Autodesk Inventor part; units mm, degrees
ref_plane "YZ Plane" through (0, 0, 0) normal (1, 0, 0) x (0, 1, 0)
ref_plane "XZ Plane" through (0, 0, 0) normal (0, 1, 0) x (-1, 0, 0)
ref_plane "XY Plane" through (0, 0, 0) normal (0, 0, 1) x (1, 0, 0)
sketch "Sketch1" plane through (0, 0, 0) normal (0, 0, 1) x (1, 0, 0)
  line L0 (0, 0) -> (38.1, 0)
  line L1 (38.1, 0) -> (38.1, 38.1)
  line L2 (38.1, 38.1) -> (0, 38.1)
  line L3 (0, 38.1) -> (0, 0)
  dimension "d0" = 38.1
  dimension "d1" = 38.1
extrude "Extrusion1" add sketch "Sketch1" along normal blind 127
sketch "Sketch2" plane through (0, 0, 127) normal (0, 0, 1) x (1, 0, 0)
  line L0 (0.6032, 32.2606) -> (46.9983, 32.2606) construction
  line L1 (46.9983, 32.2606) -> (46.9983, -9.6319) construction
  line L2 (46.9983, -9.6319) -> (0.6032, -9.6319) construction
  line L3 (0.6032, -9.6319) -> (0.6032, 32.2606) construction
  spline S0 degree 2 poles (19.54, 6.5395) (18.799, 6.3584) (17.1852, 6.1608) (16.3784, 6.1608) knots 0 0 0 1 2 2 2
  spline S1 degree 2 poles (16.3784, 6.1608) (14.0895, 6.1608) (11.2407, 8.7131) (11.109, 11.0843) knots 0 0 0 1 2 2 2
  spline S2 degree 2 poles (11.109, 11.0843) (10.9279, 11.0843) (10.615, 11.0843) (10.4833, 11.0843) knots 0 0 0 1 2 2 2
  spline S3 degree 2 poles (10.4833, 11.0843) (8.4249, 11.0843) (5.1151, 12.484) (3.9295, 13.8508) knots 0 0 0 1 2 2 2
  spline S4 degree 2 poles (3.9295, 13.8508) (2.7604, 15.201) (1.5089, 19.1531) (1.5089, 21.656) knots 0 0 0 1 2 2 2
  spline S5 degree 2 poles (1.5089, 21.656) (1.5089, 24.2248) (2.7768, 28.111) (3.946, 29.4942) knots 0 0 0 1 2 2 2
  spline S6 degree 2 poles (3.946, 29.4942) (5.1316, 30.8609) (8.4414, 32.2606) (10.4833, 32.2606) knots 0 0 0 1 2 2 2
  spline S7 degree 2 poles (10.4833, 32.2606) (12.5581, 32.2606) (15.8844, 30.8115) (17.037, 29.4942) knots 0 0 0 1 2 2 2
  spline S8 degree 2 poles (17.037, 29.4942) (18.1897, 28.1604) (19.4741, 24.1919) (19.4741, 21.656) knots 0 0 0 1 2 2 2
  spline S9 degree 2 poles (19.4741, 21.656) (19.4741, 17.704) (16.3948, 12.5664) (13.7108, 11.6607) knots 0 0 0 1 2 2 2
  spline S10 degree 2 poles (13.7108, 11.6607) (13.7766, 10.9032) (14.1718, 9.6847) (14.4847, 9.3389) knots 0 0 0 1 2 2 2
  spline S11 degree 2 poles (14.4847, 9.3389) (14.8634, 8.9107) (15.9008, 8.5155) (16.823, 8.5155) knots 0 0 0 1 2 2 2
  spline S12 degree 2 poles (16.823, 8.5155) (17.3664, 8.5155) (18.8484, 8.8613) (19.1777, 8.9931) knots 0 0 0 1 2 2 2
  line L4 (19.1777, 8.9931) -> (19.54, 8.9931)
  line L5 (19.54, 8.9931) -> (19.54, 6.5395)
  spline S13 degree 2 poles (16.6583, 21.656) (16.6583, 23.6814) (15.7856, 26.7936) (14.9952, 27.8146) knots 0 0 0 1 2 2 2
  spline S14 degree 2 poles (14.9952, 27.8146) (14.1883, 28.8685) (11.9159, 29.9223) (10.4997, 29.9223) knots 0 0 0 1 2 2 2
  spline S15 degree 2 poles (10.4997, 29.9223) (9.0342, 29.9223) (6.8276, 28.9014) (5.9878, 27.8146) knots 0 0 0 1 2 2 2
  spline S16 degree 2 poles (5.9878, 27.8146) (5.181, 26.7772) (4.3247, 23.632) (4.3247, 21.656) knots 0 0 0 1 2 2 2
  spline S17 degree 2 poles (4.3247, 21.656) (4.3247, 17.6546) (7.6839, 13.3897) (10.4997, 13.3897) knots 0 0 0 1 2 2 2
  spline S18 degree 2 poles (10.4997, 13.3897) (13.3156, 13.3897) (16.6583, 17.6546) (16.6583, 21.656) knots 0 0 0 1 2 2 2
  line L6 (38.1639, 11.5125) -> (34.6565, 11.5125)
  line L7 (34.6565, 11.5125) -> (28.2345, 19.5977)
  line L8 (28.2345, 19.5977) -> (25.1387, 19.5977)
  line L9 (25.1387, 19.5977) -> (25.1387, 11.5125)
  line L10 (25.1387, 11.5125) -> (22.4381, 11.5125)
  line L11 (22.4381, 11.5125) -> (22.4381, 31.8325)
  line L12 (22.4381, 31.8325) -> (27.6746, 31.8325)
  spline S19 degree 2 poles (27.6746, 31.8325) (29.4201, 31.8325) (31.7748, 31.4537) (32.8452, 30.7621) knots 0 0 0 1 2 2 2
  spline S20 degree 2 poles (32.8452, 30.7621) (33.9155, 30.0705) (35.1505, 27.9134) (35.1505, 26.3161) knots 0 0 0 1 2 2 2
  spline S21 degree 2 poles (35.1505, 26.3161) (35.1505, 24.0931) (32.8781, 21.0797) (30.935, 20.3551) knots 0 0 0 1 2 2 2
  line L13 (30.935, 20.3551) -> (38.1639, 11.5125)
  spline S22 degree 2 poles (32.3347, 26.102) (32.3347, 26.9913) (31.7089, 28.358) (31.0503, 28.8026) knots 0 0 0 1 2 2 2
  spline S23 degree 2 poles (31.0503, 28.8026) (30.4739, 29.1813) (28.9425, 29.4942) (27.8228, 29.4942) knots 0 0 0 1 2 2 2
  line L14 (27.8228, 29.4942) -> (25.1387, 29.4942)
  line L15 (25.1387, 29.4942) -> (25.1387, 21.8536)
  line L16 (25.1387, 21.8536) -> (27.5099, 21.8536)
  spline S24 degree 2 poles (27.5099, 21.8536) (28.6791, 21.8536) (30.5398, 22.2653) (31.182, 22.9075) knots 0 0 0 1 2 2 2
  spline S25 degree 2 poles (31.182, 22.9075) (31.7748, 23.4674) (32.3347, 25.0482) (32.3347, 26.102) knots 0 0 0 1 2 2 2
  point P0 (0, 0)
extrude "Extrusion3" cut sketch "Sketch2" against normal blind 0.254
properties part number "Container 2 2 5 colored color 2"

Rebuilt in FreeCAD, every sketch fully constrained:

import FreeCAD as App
import Part
import Sketcher
Q = App.Units.Quantity

doc = App.newDocument("Part")
params = doc.addObject("Spreadsheet::Sheet", "Params")
for row, (alias, value) in enumerate([
    ("sketch1_width", "1.5 in"),
    ("pad1_length", "5 in"),
    ("sketch2_height", "0.8 in"),
    ("pocket1_length", "0.01 in"),
], start=1):
    params.set(f"A{row}", alias)
    params.set(f"B{row}", "=" + value)
    params.setAlias(f"B{row}", alias)

body = doc.addObject("PartDesign::Body", "Body")

sketch1 = body.newObject("Sketcher::SketchObject", "Sketch")
sketch1.AttachmentSupport = (doc.getObject("XY_Plane"), [""])
sketch1.MapMode = "FlatFace"
sketch1.addGeometry([
    Part.LineSegment(App.Vector(0, 38.1, 0), App.Vector(0, 0, 0)),
    Part.LineSegment(App.Vector(0, 0, 0), App.Vector(38.1, 0, 0)),
    Part.LineSegment(App.Vector(38.1, 0, 0), App.Vector(38.1, 38.1, 0)),
    Part.LineSegment(App.Vector(38.1, 38.1, 0), App.Vector(0, 38.1, 0)),
], False)
sketch1.addConstraint([
    Sketcher.Constraint("Coincident", 0, 2, 1, 1),
    Sketcher.Constraint("Coincident", 1, 2, 2, 1),
    Sketcher.Constraint("Coincident", 2, 2, 3, 1),
    Sketcher.Constraint("Coincident", 3, 2, 0, 1),
    Sketcher.Constraint("Vertical", 0),
    Sketcher.Constraint("Horizontal", 1),
    Sketcher.Constraint("Vertical", 2),
    Sketcher.Constraint("Horizontal", 3),
    Sketcher.Constraint("Coincident", 0, 2, -1, 1),
    Sketcher.Constraint("Equal", 3, 0),
    Sketcher.Constraint("DistanceX", 1, 1, 1, 2, Q("1.5 in")),
])
sketch1.setExpression("Constraints[10]", "Params.sketch1_width")
pad1 = body.newObject("PartDesign::Pad", "Pad")
pad1.Profile = sketch1
pad1.setExpression("Length", "Params.pad1_length")

sketch2 = body.newObject("Sketcher::SketchObject", "Sketch001")
sketch2.AttachmentSupport = (doc.getObject("XY_Plane"), [""])
sketch2.MapMode = "FlatFace"
sketch2.AttachmentOffset = App.Placement(App.Vector(0, 0, 5 * 25.4), App.Rotation())
sketch2.addGeometry([
    Part.BSplineCurve([App.Vector(19.54, 6.5395, 0), App.Vector(18.799, 6.3584, 0), App.Vector(17.1852, 6.1608, 0), App.Vector(16.3784, 6.1608, 0)], [3, 1, 3], [0, 1, 2], False, 2, [1, 1, 1, 1], False),
    Part.LineSegment(App.Vector(19.54, 6.5395, 0), App.Vector(19.54, 8.9931, 0)),
    Part.LineSegment(App.Vector(19.54, 8.9931, 0), App.Vector(19.1777, 8.9931, 0)),
    Part.BSplineCurve([App.Vector(16.823, 8.5155, 0), App.Vector(17.3664, 8.5155, 0), App.Vector(18.8484, 8.8613, 0), App.Vector(19.1777, 8.9931, 0)], [3, 1, 3], [0, 1, 2], False, 2, [1, 1, 1, 1], False),
    Part.BSplineCurve([App.Vector(14.4847, 9.3389, 0), App.Vector(14.8634, 8.9107, 0), App.Vector(15.9008, 8.5155, 0), App.Vector(16.823, 8.5155, 0)], [3, 1, 3], [0, 1, 2], False, 2, [1, 1, 1, 1], False),
    Part.BSplineCurve([App.Vector(13.7108, 11.6607, 0), App.Vector(13.7766, 10.9032, 0), App.Vector(14.1718, 9.6847, 0), App.Vector(14.4847, 9.3389, 0)], [3, 1, 3], [0, 1, 2], False, 2, [1, 1, 1, 1], False),
    Part.BSplineCurve([App.Vector(19.4741, 21.656, 0), App.Vector(19.4741, 17.704, 0), App.Vector(16.3948, 12.5664, 0), App.Vector(13.7108, 11.6607, 0)], [3, 1, 3], [0, 1, 2], False, 2, [1, 1, 1, 1], False),
    Part.BSplineCurve([App.Vector(17.037, 29.4942, 0), App.Vector(18.1897, 28.1604, 0), App.Vector(19.4741, 24.1919, 0), App.Vector(19.4741, 21.656, 0)], [3, 1, 3], [0, 1, 2], False, 2, [1, 1, 1, 1], False),
    Part.BSplineCurve([App.Vector(10.4833, 32.2606, 0), App.Vector(12.5581, 32.2606, 0), App.Vector(15.8844, 30.8115, 0), App.Vector(17.037, 29.4942, 0)], [3, 1, 3], [0, 1, 2], False, 2, [1, 1, 1, 1], False),
    Part.BSplineCurve([App.Vector(3.946, 29.4942, 0), App.Vector(5.1316, 30.8609, 0), App.Vector(8.4414, 32.2606, 0), App.Vector(10.4833, 32.2606, 0)], [3, 1, 3], [0, 1, 2], False, 2, [1, 1, 1, 1], False),
    Part.BSplineCurve([App.Vector(1.5089, 21.656, 0), App.Vector(1.5089, 24.2248, 0), App.Vector(2.7768, 28.111, 0), App.Vector(3.946, 29.4942, 0)], [3, 1, 3], [0, 1, 2], False, 2, [1, 1, 1, 1], False),
    Part.BSplineCurve([App.Vector(3.9295, 13.8508, 0), App.Vector(2.7604, 15.201, 0), App.Vector(1.5089, 19.1531, 0), App.Vector(1.5089, 21.656, 0)], [3, 1, 3], [0, 1, 2], False, 2, [1, 1, 1, 1], False),
    Part.BSplineCurve([App.Vector(10.4833, 11.0843, 0), App.Vector(8.4249, 11.0843, 0), App.Vector(5.1151, 12.484, 0), App.Vector(3.9295, 13.8508, 0)], [3, 1, 3], [0, 1, 2], False, 2, [1, 1, 1, 1], False),
    Part.BSplineCurve([App.Vector(11.109, 11.0843, 0), App.Vector(10.9279, 11.0843, 0), App.Vector(10.615, 11.0843, 0), App.Vector(10.4833, 11.0843, 0)], [3, 1, 3], [0, 1, 2], False, 2, [1, 1, 1, 1], False),
    Part.BSplineCurve([App.Vector(16.3784, 6.1608, 0), App.Vector(14.0895, 6.1608, 0), App.Vector(11.2407, 8.7131, 0), App.Vector(11.109, 11.0843, 0)], [3, 1, 3], [0, 1, 2], False, 2, [1, 1, 1, 1], False),
    Part.BSplineCurve([App.Vector(16.6583, 21.656, 0), App.Vector(16.6583, 23.6814, 0), App.Vector(15.7856, 26.7936, 0), App.Vector(14.9952, 27.8146, 0)], [3, 1, 3], [0, 1, 2], False, 2, [1, 1, 1, 1], False),
    Part.BSplineCurve([App.Vector(10.4997, 13.3897, 0), App.Vector(13.3156, 13.3897, 0), App.Vector(16.6583, 17.6546, 0), App.Vector(16.6583, 21.656, 0)], [3, 1, 3], [0, 1, 2], False, 2, [1, 1, 1, 1], False),
    Part.BSplineCurve([App.Vector(4.3247, 21.656, 0), App.Vector(4.3247, 17.6546, 0), App.Vector(7.6839, 13.3897, 0), App.Vector(10.4997, 13.3897, 0)], [3, 1, 3], [0, 1, 2], False, 2, [1, 1, 1, 1], False),
    Part.BSplineCurve([App.Vector(5.9878, 27.8146, 0), App.Vector(5.181, 26.7772, 0), App.Vector(4.3247, 23.632, 0), App.Vector(4.3247, 21.656, 0)], [3, 1, 3], [0, 1, 2], False, 2, [1, 1, 1, 1], False),
    Part.BSplineCurve([App.Vector(10.4997, 29.9223, 0), App.Vector(9.0342, 29.9223, 0), App.Vector(6.8276, 28.9014, 0), App.Vector(5.9878, 27.8146, 0)], [3, 1, 3], [0, 1, 2], False, 2, [1, 1, 1, 1], False),
    Part.BSplineCurve([App.Vector(14.9952, 27.8146, 0), App.Vector(14.1883, 28.8685, 0), App.Vector(11.9159, 29.9223, 0), App.Vector(10.4997, 29.9223, 0)], [3, 1, 3], [0, 1, 2], False, 2, [1, 1, 1, 1], False),
    Part.LineSegment(App.Vector(34.6565, 11.5125, 0), App.Vector(38.1639, 11.5125, 0)),
    Part.LineSegment(App.Vector(38.1639, 11.5125, 0), App.Vector(30.935, 20.3551, 0)),
    Part.BSplineCurve([App.Vector(35.1505, 26.3161, 0), App.Vector(35.1505, 24.0931, 0), App.Vector(32.8781, 21.0797, 0), App.Vector(30.935, 20.3551, 0)], [3, 1, 3], [0, 1, 2], False, 2, [1, 1, 1, 1], False),
    Part.BSplineCurve([App.Vector(32.8452, 30.7621, 0), App.Vector(33.9155, 30.0705, 0), App.Vector(35.1505, 27.9134, 0), App.Vector(35.1505, 26.3161, 0)], [3, 1, 3], [0, 1, 2], False, 2, [1, 1, 1, 1], False),
    Part.BSplineCurve([App.Vector(27.6746, 31.8325, 0), App.Vector(29.4201, 31.8325, 0), App.Vector(31.7748, 31.4537, 0), App.Vector(32.8452, 30.7621, 0)], [3, 1, 3], [0, 1, 2], False, 2, [1, 1, 1, 1], False),
    Part.LineSegment(App.Vector(27.6746, 31.8325, 0), App.Vector(22.4381, 31.8325, 0)),
    Part.LineSegment(App.Vector(22.4381, 31.8325, 0), App.Vector(22.4381, 11.5125, 0)),
    Part.LineSegment(App.Vector(22.4381, 11.5125, 0), App.Vector(25.1387, 11.5125, 0)),
    Part.LineSegment(App.Vector(25.1387, 11.5125, 0), App.Vector(25.1387, 19.5977, 0)),
    Part.LineSegment(App.Vector(25.1387, 19.5977, 0), App.Vector(28.2345, 19.5977, 0)),
    Part.LineSegment(App.Vector(28.2345, 19.5977, 0), App.Vector(34.6565, 11.5125, 0)),
    Part.BSplineCurve([App.Vector(32.3347, 26.102, 0), App.Vector(32.3347, 26.9913, 0), App.Vector(31.7089, 28.358, 0), App.Vector(31.0503, 28.8026, 0)], [3, 1, 3], [0, 1, 2], False, 2, [1, 1, 1, 1], False),
    Part.BSplineCurve([App.Vector(31.182, 22.9075, 0), App.Vector(31.7748, 23.4674, 0), App.Vector(32.3347, 25.0482, 0), App.Vector(32.3347, 26.102, 0)], [3, 1, 3], [0, 1, 2], False, 2, [1, 1, 1, 1], False),
    Part.BSplineCurve([App.Vector(27.5099, 21.8536, 0), App.Vector(28.6791, 21.8536, 0), App.Vector(30.5398, 22.2653, 0), App.Vector(31.182, 22.9075, 0)], [3, 1, 3], [0, 1, 2], False, 2, [1, 1, 1, 1], False),
    Part.LineSegment(App.Vector(27.5099, 21.8536, 0), App.Vector(25.1387, 21.8536, 0)),
    Part.LineSegment(App.Vector(25.1387, 21.8536, 0), App.Vector(25.1387, 29.4942, 0)),
    Part.LineSegment(App.Vector(25.1387, 29.4942, 0), App.Vector(27.8228, 29.4942, 0)),
    Part.BSplineCurve([App.Vector(31.0503, 28.8026, 0), App.Vector(30.4739, 29.1813, 0), App.Vector(28.9425, 29.4942, 0), App.Vector(27.8228, 29.4942, 0)], [3, 1, 3], [0, 1, 2], False, 2, [1, 1, 1, 1], False),
], False)
sketch2.addConstraint([
    Sketcher.Constraint("Block", 0),
    Sketcher.Constraint("Block", 3),
    Sketcher.Constraint("Block", 4),
    Sketcher.Constraint("Block", 5),
    Sketcher.Constraint("Block", 6),
    Sketcher.Constraint("Block", 7),
    Sketcher.Constraint("Block", 8),
    Sketcher.Constraint("Block", 9),
    Sketcher.Constraint("Block", 10),
    Sketcher.Constraint("Block", 11),
    Sketcher.Constraint("Block", 12),
    Sketcher.Constraint("Block", 13),
    Sketcher.Constraint("Block", 14),
    Sketcher.Constraint("Block", 15),
    Sketcher.Constraint("Block", 16),
    Sketcher.Constraint("Block", 17),
    Sketcher.Constraint("Block", 18),
    Sketcher.Constraint("Block", 19),
    Sketcher.Constraint("Block", 20),
    Sketcher.Constraint("Block", 23),
    Sketcher.Constraint("Block", 24),
    Sketcher.Constraint("Block", 25),
    Sketcher.Constraint("Block", 32),
    Sketcher.Constraint("Block", 33),
    Sketcher.Constraint("Block", 34),
    Sketcher.Constraint("Block", 38),
    Sketcher.Constraint("Coincident", 0, 1, 1, 1),
    Sketcher.Constraint("Coincident", 1, 2, 2, 1),
    Sketcher.Constraint("Coincident", 2, 2, 3, 2),
    Sketcher.Constraint("Coincident", 21, 2, 22, 1),
    Sketcher.Constraint("Coincident", 22, 2, 23, 2),
    Sketcher.Constraint("Coincident", 25, 1, 26, 1),
    Sketcher.Constraint("Coincident", 26, 2, 27, 1),
    Sketcher.Constraint("Coincident", 27, 2, 28, 1),
    Sketcher.Constraint("Coincident", 28, 2, 29, 1),
    Sketcher.Constraint("Coincident", 29, 2, 30, 1),
    Sketcher.Constraint("Coincident", 30, 2, 31, 1),
    Sketcher.Constraint("Coincident", 31, 2, 21, 1),
    Sketcher.Constraint("Coincident", 34, 1, 35, 1),
    Sketcher.Constraint("Coincident", 35, 2, 36, 1),
    Sketcher.Constraint("Coincident", 36, 2, 37, 1),
    Sketcher.Constraint("Coincident", 37, 2, 38, 2),
    Sketcher.Constraint("Vertical", 1),
    Sketcher.Constraint("Horizontal", 2),
    Sketcher.Constraint("Horizontal", 21),
    Sketcher.Constraint("Horizontal", 26),
    Sketcher.Constraint("Vertical", 27),
    Sketcher.Constraint("Horizontal", 28),
    Sketcher.Constraint("Vertical", 29),
    Sketcher.Constraint("Horizontal", 30),
    Sketcher.Constraint("Horizontal", 35),
    Sketcher.Constraint("Vertical", 36),
    Sketcher.Constraint("Horizontal", 37),
    Sketcher.Constraint("Horizontal", 21, 2, 27, 2),
    Sketcher.Constraint("Vertical", 29, 2, 35, 2),
    Sketcher.Constraint("DistanceY", 27, 2, 27, 1, Q("0.8 in")),
    Sketcher.Constraint("Angle", 31, Q("-51.5402 deg")),
    Sketcher.Constraint("DistanceX", 26, 2, 37, 2, Q("0.212 in")),
    Sketcher.Constraint("Distance", 31, Q("0.4065 in")),
    Sketcher.Constraint("DistanceX", 21, 1, 21, 2, Q("3.5074 mm")),
    Sketcher.Constraint("DistanceX", 28, 1, 28, 2, Q("2.7006 mm")),
    Sketcher.Constraint("DistanceX", 30, 1, 30, 2, Q("3.0958 mm")),
])
sketch2.setExpression("Constraints[55]", "Params.sketch2_height")
pocket1 = body.newObject("PartDesign::Pocket", "Pocket")
pocket1.Profile = sketch2
pocket1.setExpression("Length", "Params.pocket1_length")

doc.recompute()
